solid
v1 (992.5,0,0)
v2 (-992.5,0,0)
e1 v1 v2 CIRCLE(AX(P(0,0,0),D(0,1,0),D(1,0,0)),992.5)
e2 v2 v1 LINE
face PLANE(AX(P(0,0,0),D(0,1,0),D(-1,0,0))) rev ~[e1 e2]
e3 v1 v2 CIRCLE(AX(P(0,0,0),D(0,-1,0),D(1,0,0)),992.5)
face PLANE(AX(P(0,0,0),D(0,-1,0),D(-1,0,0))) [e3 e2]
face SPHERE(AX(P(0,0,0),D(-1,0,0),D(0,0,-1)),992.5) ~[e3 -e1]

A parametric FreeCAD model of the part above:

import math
import FreeCAD as App
import Part
import Sketcher

V = App.Vector

doc = App.newDocument("Part")
params = doc.addObject("Spreadsheet::Sheet", "Params")
for row, (alias, value) in enumerate([
    ("sketch1_radius", "992.5 mm"),
    ("revolution_angle", "180 deg"),
], start=1):
    params.set(f"A{row}", alias)
    params.set(f"B{row}", "=" + value)
    params.setAlias(f"B{row}", alias)

body = doc.addObject("PartDesign::Body", "Body")

# Sketch on XZ plane
sketch1 = body.newObject("Sketcher::SketchObject", "Sketch")
sketch1.AttachmentSupport = (doc.getObject("XZ_Plane"), [""])
sketch1.MapMode = "FlatFace"
sketch1.addGeometry(Part.LineSegment(V(-992, 0, 0), V(992, 0, 0)), False)
sketch1.addGeometry(Part.ArcOfCircle(Part.Circle(V(0, 0, 0), V(0, 0, 1), 992), math.radians(180), math.radians(360)), False)
sketch1.addConstraint(Sketcher.Constraint("Coincident", 0, 1, 1, 1))
sketch1.addConstraint(Sketcher.Constraint("Coincident", 1, 2, 0, 2))
sketch1.addConstraint(Sketcher.Constraint("Horizontal", 0))
sketch1.addConstraint(Sketcher.Constraint("Coincident", 1, 3, -1, 1))
sketch1.addConstraint(Sketcher.Constraint("PointOnObject", 0, 1, -1))
sketch1.addConstraint(Sketcher.Constraint("Radius", 1, 992.5))
sketch1.setExpression("Constraints[5]", "Params.sketch1_radius")
revolution = body.newObject("PartDesign::Revolution", "Revolution")
revolution.Profile = sketch1
revolution.ReferenceAxis = (sketch1, ["H_Axis"])
revolution.setExpression("Angle", "Params.revolution_angle")

doc.recompute()
